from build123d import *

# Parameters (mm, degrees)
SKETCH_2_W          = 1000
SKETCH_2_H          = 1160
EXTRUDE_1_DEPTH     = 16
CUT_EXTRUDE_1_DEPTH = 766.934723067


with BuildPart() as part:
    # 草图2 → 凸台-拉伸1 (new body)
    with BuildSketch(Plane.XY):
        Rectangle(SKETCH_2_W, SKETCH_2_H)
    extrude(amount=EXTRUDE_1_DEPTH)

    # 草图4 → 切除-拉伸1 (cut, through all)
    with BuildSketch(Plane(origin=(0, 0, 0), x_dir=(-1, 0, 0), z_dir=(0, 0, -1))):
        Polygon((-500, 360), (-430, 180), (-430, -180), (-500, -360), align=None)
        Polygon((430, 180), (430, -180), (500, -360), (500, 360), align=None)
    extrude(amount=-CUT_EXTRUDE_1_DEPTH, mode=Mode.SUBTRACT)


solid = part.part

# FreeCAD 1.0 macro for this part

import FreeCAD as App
import Part
import Sketcher
from FreeCAD import Vector

doc = App.newDocument("Part")
body = doc.addObject("PartDesign::Body", "Body")

sketch1 = doc.addObject("Sketcher::SketchObject", "Sketch")
body.addObject(sketch1)
sketch1.AttachmentSupport = (doc.XY_Plane, [""])
sketch1.MapMode = "FlatFace"
sketch1.addGeometry(Part.LineSegment(Vector(-500, 580, 0), Vector(-500, -580, 0)), False)
sketch1.addGeometry(Part.LineSegment(Vector(-500, -580, 0), Vector(500, -580, 0)), False)
sketch1.addGeometry(Part.LineSegment(Vector(500, -580, 0), Vector(500, 580, 0)), False)
sketch1.addGeometry(Part.LineSegment(Vector(500, 580, 0), Vector(-500, 580, 0)), False)
sketch1.addConstraint(Sketcher.Constraint("Coincident", 0, 2, 1, 1))
sketch1.addConstraint(Sketcher.Constraint("Coincident", 1, 2, 2, 1))
sketch1.addConstraint(Sketcher.Constraint("Coincident", 2, 2, 3, 1))
sketch1.addConstraint(Sketcher.Constraint("Coincident", 3, 2, 0, 1))
sketch1.addConstraint(Sketcher.Constraint("Vertical", 0))
sketch1.addConstraint(Sketcher.Constraint("Horizontal", 1))
sketch1.addConstraint(Sketcher.Constraint("Vertical", 2))
sketch1.addConstraint(Sketcher.Constraint("Horizontal", 3))
sketch1.addConstraint(Sketcher.Constraint("Symmetric", 0, 2, 2, 2, -1, 1))
sketch1.addConstraint(Sketcher.Constraint("DistanceX", 1, 1, 1, 2, 1000.0))
sketch1.addConstraint(Sketcher.Constraint("DistanceY", 0, 2, 0, 1, 1160.0))
pad1 = doc.addObject("PartDesign::Pad", "Pad")
body.addObject(pad1)
pad1.Profile = sketch1
pad1.Length = 16

sketch2 = doc.addObject("Sketcher::SketchObject", "Sketch001")
body.addObject(sketch2)
sketch2.AttachmentSupport = (doc.XY_Plane, [""])
sketch2.MapMode = "FlatFace"
sketch2.addGeometry(Part.LineSegment(Vector(430, 180, 0), Vector(500, 360, 0)), False)
sketch2.addGeometry(Part.LineSegment(Vector(500, 360, 0), Vector(500, -360, 0)), False)
sketch2.addGeometry(Part.LineSegment(Vector(500, -360, 0), Vector(430, -180, 0)), False)
sketch2.addGeometry(Part.LineSegment(Vector(430, -180, 0), Vector(430, 180, 0)), False)
sketch2.addGeometry(Part.LineSegment(Vector(-430, 180, 0), Vector(-430, -180, 0)), False)
sketch2.addGeometry(Part.LineSegment(Vector(-430, -180, 0), Vector(-500, -360, 0)), False)
sketch2.addGeometry(Part.LineSegment(Vector(-500, -360, 0), Vector(-500, 360, 0)), False)
sketch2.addGeometry(Part.LineSegment(Vector(-500, 360, 0), Vector(-430, 180, 0)), False)
sketch2.addConstraint(Sketcher.Constraint("Coincident", 0, 2, 1, 1))
sketch2.addConstraint(Sketcher.Constraint("Coincident", 1, 2, 2, 1))
sketch2.addConstraint(Sketcher.Constraint("Coincident", 2, 2, 3, 1))
sketch2.addConstraint(Sketcher.Constraint("Coincident", 3, 2, 0, 1))
sketch2.addConstraint(Sketcher.Constraint("Coincident", 4, 2, 5, 1))
sketch2.addConstraint(Sketcher.Constraint("Coincident", 5, 2, 6, 1))
sketch2.addConstraint(Sketcher.Constraint("Coincident", 6, 2, 7, 1))
sketch2.addConstraint(Sketcher.Constraint("Coincident", 7, 2, 4, 1))
sketch2.addConstraint(Sketcher.Constraint("Vertical", 1))
sketch2.addConstraint(Sketcher.Constraint("Vertical", 3))
sketch2.addConstraint(Sketcher.Constraint("Vertical", 4))
sketch2.addConstraint(Sketcher.Constraint("Vertical", 6))
sketch2.addConstraint(Sketcher.Constraint("Symmetric", 3, 2, 4, 2, -1, 1))
sketch2.addConstraint(Sketcher.Constraint("Symmetric", 0, 2, 5, 2, -1, 1))
sketch2.addConstraint(Sketcher.Constraint("Parallel", 2, 7))
sketch2.addConstraint(Sketcher.Constraint("Horizontal", 2, 2, 4, 2))
sketch2.addConstraint(Sketcher.Constraint("Horizontal", 1, 2, 5, 2))
sketch2.addConstraint(Sketcher.Constraint("Horizontal", 0, 2, 6, 2))
sketch2.addConstraint(Sketcher.Constraint("DistanceY", 1, 2, 1, 1, 720.0))
sketch2.addConstraint(Sketcher.Constraint("DistanceY", 3, 1, 3, 2, 360.0))
sketch2.addConstraint(Sketcher.Constraint("DistanceX", -1, 1, 0, 2, 500.0))
sketch2.addConstraint(Sketcher.Constraint("DistanceX", -1, 1, 2, 2, 430.0))
pocket1 = doc.addObject("PartDesign::Pocket", "Pocket")
body.addObject(pocket1)
pocket1.Profile = sketch2
pocket1.Type = "ThroughAll"
pocket1.Reversed = True

doc.recompute()
